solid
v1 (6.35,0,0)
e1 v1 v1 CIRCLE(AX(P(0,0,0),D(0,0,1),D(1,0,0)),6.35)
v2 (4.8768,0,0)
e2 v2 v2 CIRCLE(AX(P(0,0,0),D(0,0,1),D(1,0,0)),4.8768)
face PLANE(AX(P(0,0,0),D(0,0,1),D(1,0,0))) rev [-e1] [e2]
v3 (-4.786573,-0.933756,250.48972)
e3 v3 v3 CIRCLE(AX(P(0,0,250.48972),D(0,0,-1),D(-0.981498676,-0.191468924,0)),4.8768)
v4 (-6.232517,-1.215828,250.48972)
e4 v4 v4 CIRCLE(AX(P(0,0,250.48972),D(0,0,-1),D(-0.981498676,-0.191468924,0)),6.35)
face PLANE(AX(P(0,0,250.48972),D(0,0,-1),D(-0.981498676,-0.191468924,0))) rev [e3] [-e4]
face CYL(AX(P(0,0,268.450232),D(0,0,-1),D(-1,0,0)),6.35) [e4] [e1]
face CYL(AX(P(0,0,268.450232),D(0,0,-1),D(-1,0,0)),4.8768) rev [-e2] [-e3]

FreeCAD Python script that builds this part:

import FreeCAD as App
import Part
import Sketcher
from FreeCAD import Vector
Q = App.Units.Quantity

doc = App.newDocument("Part")
params = doc.addObject("Spreadsheet::Sheet", "Params")
for row, (alias, value) in enumerate([
    ("sketch1_diameter", "0.5 in"),
    ("sketch1_diameter2", "0.384 in"),
    ("pad1_length", "9.8618 in"),
], start=1):
    params.set(f"A{row}", alias)
    params.set(f"B{row}", "=" + value)
    params.setAlias(f"B{row}", alias)

body = doc.addObject("PartDesign::Body", "Body")

# Sketch on XY plane
sketch1 = doc.addObject("Sketcher::SketchObject", "Sketch")
body.addObject(sketch1)
sketch1.AttachmentSupport = (doc.XY_Plane, [""])
sketch1.MapMode = "FlatFace"
sketch1.addGeometry([
    Part.Circle(Vector(0, 0, 0), Vector(0, 0, 1), 6.3),
    Part.Circle(Vector(0, 0, 0), Vector(0, 0, 1), 4.9),
], False)
sketch1.addConstraint([
    Sketcher.Constraint("Coincident", 0, 3, -1, 1),
    Sketcher.Constraint("Coincident", 1, 3, -1, 1),
    Sketcher.Constraint("Diameter", 0, Q("0.5 in")),
    Sketcher.Constraint("Diameter", 1, Q("0.384 in")),
])
sketch1.setExpression("Constraints[2]", "Params.sketch1_diameter")
sketch1.setExpression("Constraints[3]", "Params.sketch1_diameter2")
pad1 = doc.addObject("PartDesign::Pad", "Pad")
body.addObject(pad1)
pad1.Profile = sketch1
pad1.setExpression("Length", "Params.pad1_length")

doc.recompute()
